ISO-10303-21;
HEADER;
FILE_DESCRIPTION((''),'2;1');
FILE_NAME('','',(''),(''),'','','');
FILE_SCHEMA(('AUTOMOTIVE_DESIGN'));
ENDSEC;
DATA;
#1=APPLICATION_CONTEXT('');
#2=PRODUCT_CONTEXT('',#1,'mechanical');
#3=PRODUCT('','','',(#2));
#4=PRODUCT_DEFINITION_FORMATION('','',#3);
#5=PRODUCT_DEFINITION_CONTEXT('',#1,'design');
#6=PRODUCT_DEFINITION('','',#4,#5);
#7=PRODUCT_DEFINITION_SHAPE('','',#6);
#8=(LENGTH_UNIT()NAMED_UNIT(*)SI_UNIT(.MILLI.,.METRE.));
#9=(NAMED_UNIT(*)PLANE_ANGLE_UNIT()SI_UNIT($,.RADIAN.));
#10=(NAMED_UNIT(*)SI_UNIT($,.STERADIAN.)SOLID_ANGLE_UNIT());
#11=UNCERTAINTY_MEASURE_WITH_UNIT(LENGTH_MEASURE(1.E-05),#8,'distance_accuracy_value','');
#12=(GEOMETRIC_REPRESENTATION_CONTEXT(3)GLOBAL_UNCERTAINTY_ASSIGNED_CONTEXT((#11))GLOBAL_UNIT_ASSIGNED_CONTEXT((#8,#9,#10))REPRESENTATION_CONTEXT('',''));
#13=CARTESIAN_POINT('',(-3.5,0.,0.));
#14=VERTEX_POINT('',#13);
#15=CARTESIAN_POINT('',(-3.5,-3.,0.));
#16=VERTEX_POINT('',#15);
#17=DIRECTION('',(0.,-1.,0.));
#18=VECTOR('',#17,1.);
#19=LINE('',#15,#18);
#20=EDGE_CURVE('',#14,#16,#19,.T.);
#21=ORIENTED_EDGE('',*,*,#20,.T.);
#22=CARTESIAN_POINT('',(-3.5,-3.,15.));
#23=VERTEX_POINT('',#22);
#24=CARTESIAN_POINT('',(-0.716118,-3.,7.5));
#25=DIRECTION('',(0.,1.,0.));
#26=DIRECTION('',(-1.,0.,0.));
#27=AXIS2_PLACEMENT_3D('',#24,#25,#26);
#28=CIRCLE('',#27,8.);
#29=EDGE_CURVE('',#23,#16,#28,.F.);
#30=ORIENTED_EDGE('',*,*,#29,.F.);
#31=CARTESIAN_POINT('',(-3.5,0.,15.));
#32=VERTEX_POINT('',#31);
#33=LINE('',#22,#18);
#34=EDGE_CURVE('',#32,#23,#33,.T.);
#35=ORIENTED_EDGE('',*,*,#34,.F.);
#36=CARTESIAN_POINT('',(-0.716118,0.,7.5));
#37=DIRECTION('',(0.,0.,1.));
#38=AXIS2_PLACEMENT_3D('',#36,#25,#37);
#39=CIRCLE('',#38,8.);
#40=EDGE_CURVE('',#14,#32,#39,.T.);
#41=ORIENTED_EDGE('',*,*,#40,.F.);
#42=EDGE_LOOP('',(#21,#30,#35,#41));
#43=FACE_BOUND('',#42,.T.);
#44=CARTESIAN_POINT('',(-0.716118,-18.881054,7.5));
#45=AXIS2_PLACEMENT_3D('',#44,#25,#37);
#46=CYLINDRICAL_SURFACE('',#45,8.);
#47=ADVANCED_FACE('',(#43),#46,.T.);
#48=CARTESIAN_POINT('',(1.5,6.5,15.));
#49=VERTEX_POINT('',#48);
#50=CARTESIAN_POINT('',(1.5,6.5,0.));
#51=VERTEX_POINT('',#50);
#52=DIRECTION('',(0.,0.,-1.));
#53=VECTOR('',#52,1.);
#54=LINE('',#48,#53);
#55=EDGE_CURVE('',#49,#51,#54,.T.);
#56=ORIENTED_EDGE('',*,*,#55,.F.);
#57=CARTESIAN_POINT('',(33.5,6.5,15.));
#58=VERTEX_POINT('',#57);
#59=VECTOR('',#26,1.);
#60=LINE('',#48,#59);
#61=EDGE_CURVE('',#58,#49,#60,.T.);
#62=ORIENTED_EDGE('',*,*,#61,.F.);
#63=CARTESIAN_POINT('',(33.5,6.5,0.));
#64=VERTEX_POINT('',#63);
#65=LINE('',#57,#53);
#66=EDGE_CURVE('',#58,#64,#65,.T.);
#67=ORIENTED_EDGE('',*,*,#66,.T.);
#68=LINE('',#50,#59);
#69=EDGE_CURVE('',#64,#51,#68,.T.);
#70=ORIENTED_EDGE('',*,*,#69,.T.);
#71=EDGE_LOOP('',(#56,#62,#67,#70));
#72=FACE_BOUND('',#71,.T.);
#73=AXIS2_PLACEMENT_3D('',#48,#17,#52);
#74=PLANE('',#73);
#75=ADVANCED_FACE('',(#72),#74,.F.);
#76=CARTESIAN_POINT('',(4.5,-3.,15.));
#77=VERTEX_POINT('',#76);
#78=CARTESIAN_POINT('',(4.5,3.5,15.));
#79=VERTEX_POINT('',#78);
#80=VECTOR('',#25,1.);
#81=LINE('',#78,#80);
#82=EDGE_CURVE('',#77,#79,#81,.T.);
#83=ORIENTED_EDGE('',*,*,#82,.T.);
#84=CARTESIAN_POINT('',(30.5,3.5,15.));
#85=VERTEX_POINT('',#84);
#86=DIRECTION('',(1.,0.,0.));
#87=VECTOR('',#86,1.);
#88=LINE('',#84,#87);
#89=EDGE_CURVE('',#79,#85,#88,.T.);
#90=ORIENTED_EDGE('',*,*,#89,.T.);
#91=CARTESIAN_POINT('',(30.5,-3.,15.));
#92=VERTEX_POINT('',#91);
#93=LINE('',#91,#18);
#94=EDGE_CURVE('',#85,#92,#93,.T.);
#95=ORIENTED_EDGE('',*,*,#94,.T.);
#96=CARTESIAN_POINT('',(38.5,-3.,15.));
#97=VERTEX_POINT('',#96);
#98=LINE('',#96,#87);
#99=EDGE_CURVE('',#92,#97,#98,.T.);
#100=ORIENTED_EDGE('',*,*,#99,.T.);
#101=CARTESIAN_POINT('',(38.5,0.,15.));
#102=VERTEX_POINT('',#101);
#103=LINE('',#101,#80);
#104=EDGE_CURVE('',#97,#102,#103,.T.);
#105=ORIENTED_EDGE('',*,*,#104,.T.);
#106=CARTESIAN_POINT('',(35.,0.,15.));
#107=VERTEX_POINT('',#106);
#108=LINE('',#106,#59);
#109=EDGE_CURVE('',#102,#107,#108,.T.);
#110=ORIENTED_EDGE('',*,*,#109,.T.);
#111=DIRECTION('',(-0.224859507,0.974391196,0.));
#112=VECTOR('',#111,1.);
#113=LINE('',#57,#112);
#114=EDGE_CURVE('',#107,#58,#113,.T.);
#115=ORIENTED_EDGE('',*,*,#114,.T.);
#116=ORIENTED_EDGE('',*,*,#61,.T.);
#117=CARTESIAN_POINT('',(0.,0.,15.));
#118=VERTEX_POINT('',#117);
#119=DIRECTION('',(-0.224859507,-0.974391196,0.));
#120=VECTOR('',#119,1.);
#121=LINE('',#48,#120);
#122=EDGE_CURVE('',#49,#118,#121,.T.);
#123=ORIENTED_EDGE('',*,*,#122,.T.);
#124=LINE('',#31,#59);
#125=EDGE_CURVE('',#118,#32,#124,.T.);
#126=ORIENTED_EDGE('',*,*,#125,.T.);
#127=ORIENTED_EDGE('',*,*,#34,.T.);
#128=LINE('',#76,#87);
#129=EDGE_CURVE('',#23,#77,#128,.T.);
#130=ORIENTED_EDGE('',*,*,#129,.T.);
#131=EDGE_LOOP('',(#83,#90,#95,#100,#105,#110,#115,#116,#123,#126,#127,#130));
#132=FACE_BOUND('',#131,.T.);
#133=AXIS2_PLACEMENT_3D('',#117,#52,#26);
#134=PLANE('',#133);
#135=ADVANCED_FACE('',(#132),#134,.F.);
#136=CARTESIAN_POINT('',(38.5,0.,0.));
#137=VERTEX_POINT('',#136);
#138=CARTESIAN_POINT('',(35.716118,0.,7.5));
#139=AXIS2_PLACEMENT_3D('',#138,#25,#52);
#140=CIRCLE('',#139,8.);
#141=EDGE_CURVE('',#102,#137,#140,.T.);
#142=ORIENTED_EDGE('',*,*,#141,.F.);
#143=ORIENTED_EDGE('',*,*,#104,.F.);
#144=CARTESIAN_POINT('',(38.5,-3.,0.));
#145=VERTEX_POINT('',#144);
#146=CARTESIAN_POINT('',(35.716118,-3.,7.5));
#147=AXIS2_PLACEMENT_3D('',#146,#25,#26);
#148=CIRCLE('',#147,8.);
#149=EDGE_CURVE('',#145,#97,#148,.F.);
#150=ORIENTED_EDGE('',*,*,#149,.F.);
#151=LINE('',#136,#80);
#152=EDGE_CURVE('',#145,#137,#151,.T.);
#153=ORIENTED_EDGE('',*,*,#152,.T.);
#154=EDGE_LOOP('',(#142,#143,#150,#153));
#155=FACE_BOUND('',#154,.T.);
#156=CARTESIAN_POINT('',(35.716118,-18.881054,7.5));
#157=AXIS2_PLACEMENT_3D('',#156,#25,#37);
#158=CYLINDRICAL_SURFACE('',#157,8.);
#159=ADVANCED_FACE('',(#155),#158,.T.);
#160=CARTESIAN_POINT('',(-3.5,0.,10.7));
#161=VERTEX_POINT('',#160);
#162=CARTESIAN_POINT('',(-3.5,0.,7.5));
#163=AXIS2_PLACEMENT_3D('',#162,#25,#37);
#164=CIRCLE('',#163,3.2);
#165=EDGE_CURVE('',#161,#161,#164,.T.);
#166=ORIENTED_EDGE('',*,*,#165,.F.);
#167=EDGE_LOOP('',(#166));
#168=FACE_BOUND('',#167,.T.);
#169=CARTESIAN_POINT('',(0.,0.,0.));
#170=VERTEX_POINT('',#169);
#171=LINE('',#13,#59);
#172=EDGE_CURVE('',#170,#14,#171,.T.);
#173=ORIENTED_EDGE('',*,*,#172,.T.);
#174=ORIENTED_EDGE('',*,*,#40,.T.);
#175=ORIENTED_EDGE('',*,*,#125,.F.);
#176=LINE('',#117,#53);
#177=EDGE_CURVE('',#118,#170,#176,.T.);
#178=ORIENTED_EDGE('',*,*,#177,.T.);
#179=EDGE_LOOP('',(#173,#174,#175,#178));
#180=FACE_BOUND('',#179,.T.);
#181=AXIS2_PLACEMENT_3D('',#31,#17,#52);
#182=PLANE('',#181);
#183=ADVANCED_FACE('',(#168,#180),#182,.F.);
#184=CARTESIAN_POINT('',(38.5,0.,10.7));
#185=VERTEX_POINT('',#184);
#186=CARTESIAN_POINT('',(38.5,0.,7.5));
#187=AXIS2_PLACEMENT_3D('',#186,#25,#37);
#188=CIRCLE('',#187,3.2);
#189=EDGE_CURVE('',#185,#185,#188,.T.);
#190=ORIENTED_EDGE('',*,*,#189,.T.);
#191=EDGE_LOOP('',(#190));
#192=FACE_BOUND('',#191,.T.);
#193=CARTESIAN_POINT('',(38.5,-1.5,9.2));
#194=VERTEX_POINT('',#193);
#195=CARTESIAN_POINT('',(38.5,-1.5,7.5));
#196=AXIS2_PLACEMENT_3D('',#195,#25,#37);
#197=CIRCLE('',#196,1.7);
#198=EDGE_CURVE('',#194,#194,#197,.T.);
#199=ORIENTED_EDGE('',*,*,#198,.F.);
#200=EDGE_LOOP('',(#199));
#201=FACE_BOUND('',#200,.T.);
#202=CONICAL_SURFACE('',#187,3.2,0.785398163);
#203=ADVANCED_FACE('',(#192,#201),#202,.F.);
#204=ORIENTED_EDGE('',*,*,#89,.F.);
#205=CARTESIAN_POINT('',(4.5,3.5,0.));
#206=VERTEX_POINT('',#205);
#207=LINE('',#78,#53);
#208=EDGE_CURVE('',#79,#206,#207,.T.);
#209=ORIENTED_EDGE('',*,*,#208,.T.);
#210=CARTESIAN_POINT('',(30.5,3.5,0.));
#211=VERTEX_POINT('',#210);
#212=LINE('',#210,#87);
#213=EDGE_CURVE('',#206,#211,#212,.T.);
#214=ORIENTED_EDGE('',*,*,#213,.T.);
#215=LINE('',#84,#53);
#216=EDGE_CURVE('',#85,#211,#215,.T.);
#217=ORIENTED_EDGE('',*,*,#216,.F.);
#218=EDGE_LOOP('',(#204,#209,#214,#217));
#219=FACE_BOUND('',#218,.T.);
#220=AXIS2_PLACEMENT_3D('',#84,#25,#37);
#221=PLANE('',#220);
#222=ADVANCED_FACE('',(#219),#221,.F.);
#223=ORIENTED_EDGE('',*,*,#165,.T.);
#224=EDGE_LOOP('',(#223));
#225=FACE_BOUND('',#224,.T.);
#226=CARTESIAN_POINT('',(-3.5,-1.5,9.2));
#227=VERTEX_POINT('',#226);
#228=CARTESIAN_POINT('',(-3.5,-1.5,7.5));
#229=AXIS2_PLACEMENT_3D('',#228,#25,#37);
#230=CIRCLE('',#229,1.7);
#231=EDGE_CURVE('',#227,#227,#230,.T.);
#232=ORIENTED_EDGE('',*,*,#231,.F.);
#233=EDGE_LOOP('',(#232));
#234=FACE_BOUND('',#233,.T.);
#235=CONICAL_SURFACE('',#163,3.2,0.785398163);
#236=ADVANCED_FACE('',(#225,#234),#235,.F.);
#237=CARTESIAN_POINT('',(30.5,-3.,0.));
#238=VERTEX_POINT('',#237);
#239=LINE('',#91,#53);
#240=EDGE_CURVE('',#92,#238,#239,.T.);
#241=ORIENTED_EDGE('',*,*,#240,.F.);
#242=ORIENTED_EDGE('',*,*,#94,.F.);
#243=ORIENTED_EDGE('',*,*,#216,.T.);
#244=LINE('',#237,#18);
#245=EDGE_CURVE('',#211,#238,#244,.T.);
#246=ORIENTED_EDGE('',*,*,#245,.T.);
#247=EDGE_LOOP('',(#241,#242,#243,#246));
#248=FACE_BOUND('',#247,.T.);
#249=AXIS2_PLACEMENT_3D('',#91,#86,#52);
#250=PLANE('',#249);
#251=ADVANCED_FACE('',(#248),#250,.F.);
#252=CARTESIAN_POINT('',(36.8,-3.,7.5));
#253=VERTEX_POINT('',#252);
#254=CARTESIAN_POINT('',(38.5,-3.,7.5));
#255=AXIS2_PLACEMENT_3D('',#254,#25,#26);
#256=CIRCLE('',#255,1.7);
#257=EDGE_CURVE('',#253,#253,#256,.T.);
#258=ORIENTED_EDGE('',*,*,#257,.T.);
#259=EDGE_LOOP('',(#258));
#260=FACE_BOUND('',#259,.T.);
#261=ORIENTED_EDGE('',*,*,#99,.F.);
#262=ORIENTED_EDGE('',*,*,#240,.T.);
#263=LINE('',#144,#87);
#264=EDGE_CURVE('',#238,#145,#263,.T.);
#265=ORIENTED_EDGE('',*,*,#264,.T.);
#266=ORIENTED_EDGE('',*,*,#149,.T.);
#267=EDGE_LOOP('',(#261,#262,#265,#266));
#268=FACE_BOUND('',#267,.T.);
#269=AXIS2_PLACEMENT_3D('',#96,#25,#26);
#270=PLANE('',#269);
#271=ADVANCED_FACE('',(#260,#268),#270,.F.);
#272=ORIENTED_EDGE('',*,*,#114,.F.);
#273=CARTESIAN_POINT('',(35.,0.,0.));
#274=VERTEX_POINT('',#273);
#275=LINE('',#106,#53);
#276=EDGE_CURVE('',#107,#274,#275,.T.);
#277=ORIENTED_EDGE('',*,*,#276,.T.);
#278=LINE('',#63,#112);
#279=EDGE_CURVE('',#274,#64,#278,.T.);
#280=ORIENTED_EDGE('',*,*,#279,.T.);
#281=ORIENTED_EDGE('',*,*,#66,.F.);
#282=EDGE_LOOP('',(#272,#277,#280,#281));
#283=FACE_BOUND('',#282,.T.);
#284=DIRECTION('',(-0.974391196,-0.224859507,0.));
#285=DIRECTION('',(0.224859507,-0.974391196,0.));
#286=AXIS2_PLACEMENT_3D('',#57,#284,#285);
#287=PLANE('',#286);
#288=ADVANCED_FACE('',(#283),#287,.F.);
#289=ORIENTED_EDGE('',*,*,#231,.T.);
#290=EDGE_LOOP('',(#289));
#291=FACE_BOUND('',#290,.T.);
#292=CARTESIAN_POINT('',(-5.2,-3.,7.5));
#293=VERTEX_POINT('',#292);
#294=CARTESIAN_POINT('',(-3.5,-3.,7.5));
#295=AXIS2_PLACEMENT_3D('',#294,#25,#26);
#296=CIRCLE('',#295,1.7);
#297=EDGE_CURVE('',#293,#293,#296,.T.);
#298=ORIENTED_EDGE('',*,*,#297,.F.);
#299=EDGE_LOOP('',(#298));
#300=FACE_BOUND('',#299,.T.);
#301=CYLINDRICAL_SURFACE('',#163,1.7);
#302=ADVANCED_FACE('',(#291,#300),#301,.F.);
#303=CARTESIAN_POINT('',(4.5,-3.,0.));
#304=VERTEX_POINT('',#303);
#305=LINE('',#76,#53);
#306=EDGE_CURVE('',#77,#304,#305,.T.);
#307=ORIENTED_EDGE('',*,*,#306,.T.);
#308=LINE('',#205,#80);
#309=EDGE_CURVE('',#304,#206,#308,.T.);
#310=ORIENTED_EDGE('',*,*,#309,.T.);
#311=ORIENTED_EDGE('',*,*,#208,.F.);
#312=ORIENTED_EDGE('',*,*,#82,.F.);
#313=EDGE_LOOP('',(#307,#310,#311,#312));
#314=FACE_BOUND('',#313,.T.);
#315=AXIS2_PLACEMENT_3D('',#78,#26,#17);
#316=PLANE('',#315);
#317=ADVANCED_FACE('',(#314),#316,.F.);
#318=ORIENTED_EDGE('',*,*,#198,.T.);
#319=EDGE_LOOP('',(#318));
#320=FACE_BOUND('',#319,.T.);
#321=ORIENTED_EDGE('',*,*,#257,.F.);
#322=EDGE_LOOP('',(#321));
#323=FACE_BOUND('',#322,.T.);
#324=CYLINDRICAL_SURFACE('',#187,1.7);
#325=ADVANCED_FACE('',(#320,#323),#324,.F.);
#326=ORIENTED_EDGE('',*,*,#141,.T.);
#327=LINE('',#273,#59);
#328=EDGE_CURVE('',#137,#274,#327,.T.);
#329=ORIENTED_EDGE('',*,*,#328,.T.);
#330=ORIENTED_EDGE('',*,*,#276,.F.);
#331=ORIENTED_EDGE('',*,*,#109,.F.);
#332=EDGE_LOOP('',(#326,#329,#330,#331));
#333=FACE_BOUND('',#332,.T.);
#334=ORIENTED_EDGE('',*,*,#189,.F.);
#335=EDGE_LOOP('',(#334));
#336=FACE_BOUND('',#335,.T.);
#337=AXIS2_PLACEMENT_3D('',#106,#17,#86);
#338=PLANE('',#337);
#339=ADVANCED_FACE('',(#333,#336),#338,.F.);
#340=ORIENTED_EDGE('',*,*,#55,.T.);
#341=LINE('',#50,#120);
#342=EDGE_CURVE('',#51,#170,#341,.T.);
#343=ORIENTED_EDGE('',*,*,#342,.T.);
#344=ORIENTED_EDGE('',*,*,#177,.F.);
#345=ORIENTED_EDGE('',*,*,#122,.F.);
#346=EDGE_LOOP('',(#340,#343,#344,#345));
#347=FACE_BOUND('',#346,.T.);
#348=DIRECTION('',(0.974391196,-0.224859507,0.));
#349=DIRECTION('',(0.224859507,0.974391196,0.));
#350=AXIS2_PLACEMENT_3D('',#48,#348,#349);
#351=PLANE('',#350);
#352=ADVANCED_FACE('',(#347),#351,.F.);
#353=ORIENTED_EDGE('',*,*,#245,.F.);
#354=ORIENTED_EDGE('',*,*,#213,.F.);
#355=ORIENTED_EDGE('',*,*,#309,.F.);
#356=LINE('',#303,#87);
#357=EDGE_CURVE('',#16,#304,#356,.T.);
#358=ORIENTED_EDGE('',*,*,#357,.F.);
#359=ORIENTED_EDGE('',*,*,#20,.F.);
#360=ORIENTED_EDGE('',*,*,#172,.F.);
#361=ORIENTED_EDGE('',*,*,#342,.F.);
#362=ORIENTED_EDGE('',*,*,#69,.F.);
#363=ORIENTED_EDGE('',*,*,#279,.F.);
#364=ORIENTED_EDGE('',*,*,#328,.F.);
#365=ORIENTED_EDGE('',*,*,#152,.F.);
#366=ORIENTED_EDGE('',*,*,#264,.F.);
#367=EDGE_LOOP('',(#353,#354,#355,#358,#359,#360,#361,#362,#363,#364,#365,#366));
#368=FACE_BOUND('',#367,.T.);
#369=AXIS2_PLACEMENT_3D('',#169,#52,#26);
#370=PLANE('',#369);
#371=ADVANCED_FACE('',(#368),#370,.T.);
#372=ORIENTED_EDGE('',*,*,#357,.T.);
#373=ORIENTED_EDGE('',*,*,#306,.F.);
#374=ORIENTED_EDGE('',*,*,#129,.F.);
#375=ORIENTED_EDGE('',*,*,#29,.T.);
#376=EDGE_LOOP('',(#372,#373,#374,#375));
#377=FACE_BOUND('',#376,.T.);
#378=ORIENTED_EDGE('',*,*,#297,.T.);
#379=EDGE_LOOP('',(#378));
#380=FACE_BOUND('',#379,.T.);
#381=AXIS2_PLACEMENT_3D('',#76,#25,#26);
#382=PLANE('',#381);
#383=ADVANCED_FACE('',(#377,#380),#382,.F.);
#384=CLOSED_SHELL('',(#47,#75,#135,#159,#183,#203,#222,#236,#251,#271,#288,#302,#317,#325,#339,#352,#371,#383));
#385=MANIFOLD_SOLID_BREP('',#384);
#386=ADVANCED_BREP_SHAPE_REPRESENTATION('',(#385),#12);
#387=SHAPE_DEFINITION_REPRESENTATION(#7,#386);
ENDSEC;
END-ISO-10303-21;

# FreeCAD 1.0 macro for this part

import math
import FreeCAD as App
import Part
import Sketcher
from FreeCAD import Vector
Q = App.Units.Quantity


def add_polygon(sketch, points):
    """Adds a closed chain of lines whose ends are joined by coincident constraints."""
    first, n = sketch.GeometryCount, len(points)
    for a, b in zip(points, points[1:] + points[:1]):
        sketch.addGeometry(Part.LineSegment(App.Vector(*a, 0), App.Vector(*b, 0)), False)
    for i in range(n):
        sketch.addConstraint(Sketcher.Constraint("Coincident", first + i, 2, first + (i + 1) % n, 1))

doc = App.newDocument("Part")
body = doc.addObject("PartDesign::Body", "Body")

# Sketch on XY plane
sketch1 = body.newObject("Sketcher::SketchObject", "Sketch")
sketch1.AttachmentSupport = (doc.getObject("XY_Plane"), [""])
sketch1.MapMode = "FlatFace"
add_polygon(sketch1, [(1.5, 6.5), (0, 0), (-3.5, 0), (-3.5, -3), (4.5, -3), (4.5, 3.5), (30.5, 3.5), (30.5, -3), (38.5, -3), (38.5, 0), (35, 0), (33.5, 6.5)])  # lines 0-11
sketch1.addConstraint(Sketcher.Constraint("Horizontal", 1))
sketch1.addConstraint(Sketcher.Constraint("Vertical", 2))
sketch1.addConstraint(Sketcher.Constraint("Horizontal", 3))
sketch1.addConstraint(Sketcher.Constraint("Vertical", 4))
sketch1.addConstraint(Sketcher.Constraint("Horizontal", 5))
sketch1.addConstraint(Sketcher.Constraint("Vertical", 6))
sketch1.addConstraint(Sketcher.Constraint("Horizontal", 7))
sketch1.addConstraint(Sketcher.Constraint("Vertical", 8))
sketch1.addConstraint(Sketcher.Constraint("Horizontal", 9))
sketch1.addConstraint(Sketcher.Constraint("Horizontal", 11))
sketch1.addConstraint(Sketcher.Constraint("Coincident", 0, 2, -1, 1))
sketch1.addConstraint(Sketcher.Constraint("PointOnObject", 8, 2, -1))
sketch1.addConstraint(Sketcher.Constraint("Horizontal", 3, 2, 6, 2))
sketch1.addConstraint(Sketcher.Constraint("Equal", 3, 7))
sketch1.addConstraint(Sketcher.Constraint("Equal", 1, 9))
sketch1.addConstraint(Sketcher.Constraint("Equal", 0, 10))
sketch1.addConstraint(Sketcher.Constraint("DistanceX", 3, 1, 3, 2, Q("8 mm")))
sketch1.addConstraint(Sketcher.Constraint("DistanceX", 5, 1, 5, 2, Q("26 mm")))
sketch1.addConstraint(Sketcher.Constraint("DistanceX", 11, 2, 11, 1, Q("32 mm")))
sketch1.addConstraint(Sketcher.Constraint("DistanceY", 2, 2, 2, 1, Q("3 mm")))
sketch1.addConstraint(Sketcher.Constraint("DistanceX", 1, 2, 1, 1, Q("3.5 mm")))
sketch1.addConstraint(Sketcher.Constraint("DistanceY", 4, 1, 4, 2, Q("6.5 mm")))
sketch1.addConstraint(Sketcher.Constraint("DistanceY", 5, 2, 10, 2, Q("3 mm")))
pad1 = body.newObject("PartDesign::Pad", "Pad")
pad1.Profile = sketch1
pad1.Length = 15

# Sketch on XZ plane
sketch2 = body.newObject("Sketcher::SketchObject", "Sketch001")
sketch2.AttachmentSupport = (doc.getObject("XZ_Plane"), [""])
sketch2.MapMode = "FlatFace"
sketch2.addGeometry(Part.LineSegment(Vector(-3.5, 15, 0), Vector(-3.5, 0, 0)), False)
sketch2.addGeometry(Part.ArcOfCircle(Part.Circle(Vector(-0.716118, 7.5, 0), Vector(0, 0, 1), 8), math.radians(110.364135), math.radians(249.635865)), False)
sketch2.addGeometry(Part.LineSegment(Vector(38.5, 0, 0), Vector(38.5, 15, 0)), False)
sketch2.addGeometry(Part.ArcOfCircle(Part.Circle(Vector(35.716118, 7.5, 0), Vector(0, 0, 1), 8), math.radians(-69.635865), math.radians(69.635865)), False)
sketch2.addConstraint(Sketcher.Constraint("Coincident", 0, 1, 1, 1))
sketch2.addConstraint(Sketcher.Constraint("Coincident", 1, 2, 0, 2))
sketch2.addConstraint(Sketcher.Constraint("Coincident", 2, 1, 3, 1))
sketch2.addConstraint(Sketcher.Constraint("Coincident", 3, 2, 2, 2))
sketch2.addConstraint(Sketcher.Constraint("Vertical", 0))
sketch2.addConstraint(Sketcher.Constraint("Vertical", 2))
sketch2.addConstraint(Sketcher.Constraint("Equal", 1, 3))
sketch2.addConstraint(Sketcher.Constraint("PointOnObject", 1, 2, -1))
sketch2.addConstraint(Sketcher.Constraint("PointOnObject", 2, 1, -1))
sketch2.addConstraint(Sketcher.Constraint("Horizontal", 1, 3, 3, 3))
sketch2.addConstraint(Sketcher.Constraint("Radius", 1, Q("8 mm")))
sketch2.addConstraint(Sketcher.Constraint("DistanceY", 0, 2, 0, 1, Q("15 mm")))
sketch2.addConstraint(Sketcher.Constraint("DistanceX", 1, 2, 2, 1, Q("42 mm")))
sketch2.addConstraint(Sketcher.Constraint("DistanceX", 0, 1, -1, 1, Q("3.5 mm")))
pad2 = body.newObject("PartDesign::Pad", "Pad001")
pad2.Profile = sketch2
pad2.Length = 3

# Sketch on XZ plane
sketch3 = body.newObject("Sketcher::SketchObject", "Sketch002")
sketch3.AttachmentSupport = (doc.getObject("XZ_Plane"), [""])
sketch3.MapMode = "FlatFace"
sketch3.addGeometry(Part.Circle(Vector(-3.5, 7.5, 0), Vector(0, 0, 1), 1.7), False)
sketch3.addGeometry(Part.Circle(Vector(38.5, 7.5, 0), Vector(0, 0, 1), 1.7), False)
sketch3.addConstraint(Sketcher.Constraint("Equal", 0, 1))
sketch3.addConstraint(Sketcher.Constraint("Horizontal", 0, 3, 1, 3))
sketch3.addConstraint(Sketcher.Constraint("Diameter", 0, Q("3.4 mm")))
sketch3.addConstraint(Sketcher.Constraint("DistanceX", 0, 3, 1, 3, Q("42 mm")))
sketch3.addConstraint(Sketcher.Constraint("DistanceX", 0, 3, -1, 1, Q("3.5 mm")))
sketch3.addConstraint(Sketcher.Constraint("DistanceY", -1, 1, 0, 3, Q("7.5 mm")))
doc.recompute()
hole = body.newObject("PartDesign::Hole", "Hole")
hole.Profile = sketch3
hole.ThreadType = "None"
hole.Diameter = 3.4
hole.DepthType = "Dimension"
hole.Depth = 64
hole.DrillPoint = "Angled"
hole.DrillPointAngle = 118
hole.HoleCutType = "Countersink"
hole.HoleCutDiameter = 6.4
hole.HoleCutCountersinkAngle = 90
hole.Reversed = True

doc.recompute()
